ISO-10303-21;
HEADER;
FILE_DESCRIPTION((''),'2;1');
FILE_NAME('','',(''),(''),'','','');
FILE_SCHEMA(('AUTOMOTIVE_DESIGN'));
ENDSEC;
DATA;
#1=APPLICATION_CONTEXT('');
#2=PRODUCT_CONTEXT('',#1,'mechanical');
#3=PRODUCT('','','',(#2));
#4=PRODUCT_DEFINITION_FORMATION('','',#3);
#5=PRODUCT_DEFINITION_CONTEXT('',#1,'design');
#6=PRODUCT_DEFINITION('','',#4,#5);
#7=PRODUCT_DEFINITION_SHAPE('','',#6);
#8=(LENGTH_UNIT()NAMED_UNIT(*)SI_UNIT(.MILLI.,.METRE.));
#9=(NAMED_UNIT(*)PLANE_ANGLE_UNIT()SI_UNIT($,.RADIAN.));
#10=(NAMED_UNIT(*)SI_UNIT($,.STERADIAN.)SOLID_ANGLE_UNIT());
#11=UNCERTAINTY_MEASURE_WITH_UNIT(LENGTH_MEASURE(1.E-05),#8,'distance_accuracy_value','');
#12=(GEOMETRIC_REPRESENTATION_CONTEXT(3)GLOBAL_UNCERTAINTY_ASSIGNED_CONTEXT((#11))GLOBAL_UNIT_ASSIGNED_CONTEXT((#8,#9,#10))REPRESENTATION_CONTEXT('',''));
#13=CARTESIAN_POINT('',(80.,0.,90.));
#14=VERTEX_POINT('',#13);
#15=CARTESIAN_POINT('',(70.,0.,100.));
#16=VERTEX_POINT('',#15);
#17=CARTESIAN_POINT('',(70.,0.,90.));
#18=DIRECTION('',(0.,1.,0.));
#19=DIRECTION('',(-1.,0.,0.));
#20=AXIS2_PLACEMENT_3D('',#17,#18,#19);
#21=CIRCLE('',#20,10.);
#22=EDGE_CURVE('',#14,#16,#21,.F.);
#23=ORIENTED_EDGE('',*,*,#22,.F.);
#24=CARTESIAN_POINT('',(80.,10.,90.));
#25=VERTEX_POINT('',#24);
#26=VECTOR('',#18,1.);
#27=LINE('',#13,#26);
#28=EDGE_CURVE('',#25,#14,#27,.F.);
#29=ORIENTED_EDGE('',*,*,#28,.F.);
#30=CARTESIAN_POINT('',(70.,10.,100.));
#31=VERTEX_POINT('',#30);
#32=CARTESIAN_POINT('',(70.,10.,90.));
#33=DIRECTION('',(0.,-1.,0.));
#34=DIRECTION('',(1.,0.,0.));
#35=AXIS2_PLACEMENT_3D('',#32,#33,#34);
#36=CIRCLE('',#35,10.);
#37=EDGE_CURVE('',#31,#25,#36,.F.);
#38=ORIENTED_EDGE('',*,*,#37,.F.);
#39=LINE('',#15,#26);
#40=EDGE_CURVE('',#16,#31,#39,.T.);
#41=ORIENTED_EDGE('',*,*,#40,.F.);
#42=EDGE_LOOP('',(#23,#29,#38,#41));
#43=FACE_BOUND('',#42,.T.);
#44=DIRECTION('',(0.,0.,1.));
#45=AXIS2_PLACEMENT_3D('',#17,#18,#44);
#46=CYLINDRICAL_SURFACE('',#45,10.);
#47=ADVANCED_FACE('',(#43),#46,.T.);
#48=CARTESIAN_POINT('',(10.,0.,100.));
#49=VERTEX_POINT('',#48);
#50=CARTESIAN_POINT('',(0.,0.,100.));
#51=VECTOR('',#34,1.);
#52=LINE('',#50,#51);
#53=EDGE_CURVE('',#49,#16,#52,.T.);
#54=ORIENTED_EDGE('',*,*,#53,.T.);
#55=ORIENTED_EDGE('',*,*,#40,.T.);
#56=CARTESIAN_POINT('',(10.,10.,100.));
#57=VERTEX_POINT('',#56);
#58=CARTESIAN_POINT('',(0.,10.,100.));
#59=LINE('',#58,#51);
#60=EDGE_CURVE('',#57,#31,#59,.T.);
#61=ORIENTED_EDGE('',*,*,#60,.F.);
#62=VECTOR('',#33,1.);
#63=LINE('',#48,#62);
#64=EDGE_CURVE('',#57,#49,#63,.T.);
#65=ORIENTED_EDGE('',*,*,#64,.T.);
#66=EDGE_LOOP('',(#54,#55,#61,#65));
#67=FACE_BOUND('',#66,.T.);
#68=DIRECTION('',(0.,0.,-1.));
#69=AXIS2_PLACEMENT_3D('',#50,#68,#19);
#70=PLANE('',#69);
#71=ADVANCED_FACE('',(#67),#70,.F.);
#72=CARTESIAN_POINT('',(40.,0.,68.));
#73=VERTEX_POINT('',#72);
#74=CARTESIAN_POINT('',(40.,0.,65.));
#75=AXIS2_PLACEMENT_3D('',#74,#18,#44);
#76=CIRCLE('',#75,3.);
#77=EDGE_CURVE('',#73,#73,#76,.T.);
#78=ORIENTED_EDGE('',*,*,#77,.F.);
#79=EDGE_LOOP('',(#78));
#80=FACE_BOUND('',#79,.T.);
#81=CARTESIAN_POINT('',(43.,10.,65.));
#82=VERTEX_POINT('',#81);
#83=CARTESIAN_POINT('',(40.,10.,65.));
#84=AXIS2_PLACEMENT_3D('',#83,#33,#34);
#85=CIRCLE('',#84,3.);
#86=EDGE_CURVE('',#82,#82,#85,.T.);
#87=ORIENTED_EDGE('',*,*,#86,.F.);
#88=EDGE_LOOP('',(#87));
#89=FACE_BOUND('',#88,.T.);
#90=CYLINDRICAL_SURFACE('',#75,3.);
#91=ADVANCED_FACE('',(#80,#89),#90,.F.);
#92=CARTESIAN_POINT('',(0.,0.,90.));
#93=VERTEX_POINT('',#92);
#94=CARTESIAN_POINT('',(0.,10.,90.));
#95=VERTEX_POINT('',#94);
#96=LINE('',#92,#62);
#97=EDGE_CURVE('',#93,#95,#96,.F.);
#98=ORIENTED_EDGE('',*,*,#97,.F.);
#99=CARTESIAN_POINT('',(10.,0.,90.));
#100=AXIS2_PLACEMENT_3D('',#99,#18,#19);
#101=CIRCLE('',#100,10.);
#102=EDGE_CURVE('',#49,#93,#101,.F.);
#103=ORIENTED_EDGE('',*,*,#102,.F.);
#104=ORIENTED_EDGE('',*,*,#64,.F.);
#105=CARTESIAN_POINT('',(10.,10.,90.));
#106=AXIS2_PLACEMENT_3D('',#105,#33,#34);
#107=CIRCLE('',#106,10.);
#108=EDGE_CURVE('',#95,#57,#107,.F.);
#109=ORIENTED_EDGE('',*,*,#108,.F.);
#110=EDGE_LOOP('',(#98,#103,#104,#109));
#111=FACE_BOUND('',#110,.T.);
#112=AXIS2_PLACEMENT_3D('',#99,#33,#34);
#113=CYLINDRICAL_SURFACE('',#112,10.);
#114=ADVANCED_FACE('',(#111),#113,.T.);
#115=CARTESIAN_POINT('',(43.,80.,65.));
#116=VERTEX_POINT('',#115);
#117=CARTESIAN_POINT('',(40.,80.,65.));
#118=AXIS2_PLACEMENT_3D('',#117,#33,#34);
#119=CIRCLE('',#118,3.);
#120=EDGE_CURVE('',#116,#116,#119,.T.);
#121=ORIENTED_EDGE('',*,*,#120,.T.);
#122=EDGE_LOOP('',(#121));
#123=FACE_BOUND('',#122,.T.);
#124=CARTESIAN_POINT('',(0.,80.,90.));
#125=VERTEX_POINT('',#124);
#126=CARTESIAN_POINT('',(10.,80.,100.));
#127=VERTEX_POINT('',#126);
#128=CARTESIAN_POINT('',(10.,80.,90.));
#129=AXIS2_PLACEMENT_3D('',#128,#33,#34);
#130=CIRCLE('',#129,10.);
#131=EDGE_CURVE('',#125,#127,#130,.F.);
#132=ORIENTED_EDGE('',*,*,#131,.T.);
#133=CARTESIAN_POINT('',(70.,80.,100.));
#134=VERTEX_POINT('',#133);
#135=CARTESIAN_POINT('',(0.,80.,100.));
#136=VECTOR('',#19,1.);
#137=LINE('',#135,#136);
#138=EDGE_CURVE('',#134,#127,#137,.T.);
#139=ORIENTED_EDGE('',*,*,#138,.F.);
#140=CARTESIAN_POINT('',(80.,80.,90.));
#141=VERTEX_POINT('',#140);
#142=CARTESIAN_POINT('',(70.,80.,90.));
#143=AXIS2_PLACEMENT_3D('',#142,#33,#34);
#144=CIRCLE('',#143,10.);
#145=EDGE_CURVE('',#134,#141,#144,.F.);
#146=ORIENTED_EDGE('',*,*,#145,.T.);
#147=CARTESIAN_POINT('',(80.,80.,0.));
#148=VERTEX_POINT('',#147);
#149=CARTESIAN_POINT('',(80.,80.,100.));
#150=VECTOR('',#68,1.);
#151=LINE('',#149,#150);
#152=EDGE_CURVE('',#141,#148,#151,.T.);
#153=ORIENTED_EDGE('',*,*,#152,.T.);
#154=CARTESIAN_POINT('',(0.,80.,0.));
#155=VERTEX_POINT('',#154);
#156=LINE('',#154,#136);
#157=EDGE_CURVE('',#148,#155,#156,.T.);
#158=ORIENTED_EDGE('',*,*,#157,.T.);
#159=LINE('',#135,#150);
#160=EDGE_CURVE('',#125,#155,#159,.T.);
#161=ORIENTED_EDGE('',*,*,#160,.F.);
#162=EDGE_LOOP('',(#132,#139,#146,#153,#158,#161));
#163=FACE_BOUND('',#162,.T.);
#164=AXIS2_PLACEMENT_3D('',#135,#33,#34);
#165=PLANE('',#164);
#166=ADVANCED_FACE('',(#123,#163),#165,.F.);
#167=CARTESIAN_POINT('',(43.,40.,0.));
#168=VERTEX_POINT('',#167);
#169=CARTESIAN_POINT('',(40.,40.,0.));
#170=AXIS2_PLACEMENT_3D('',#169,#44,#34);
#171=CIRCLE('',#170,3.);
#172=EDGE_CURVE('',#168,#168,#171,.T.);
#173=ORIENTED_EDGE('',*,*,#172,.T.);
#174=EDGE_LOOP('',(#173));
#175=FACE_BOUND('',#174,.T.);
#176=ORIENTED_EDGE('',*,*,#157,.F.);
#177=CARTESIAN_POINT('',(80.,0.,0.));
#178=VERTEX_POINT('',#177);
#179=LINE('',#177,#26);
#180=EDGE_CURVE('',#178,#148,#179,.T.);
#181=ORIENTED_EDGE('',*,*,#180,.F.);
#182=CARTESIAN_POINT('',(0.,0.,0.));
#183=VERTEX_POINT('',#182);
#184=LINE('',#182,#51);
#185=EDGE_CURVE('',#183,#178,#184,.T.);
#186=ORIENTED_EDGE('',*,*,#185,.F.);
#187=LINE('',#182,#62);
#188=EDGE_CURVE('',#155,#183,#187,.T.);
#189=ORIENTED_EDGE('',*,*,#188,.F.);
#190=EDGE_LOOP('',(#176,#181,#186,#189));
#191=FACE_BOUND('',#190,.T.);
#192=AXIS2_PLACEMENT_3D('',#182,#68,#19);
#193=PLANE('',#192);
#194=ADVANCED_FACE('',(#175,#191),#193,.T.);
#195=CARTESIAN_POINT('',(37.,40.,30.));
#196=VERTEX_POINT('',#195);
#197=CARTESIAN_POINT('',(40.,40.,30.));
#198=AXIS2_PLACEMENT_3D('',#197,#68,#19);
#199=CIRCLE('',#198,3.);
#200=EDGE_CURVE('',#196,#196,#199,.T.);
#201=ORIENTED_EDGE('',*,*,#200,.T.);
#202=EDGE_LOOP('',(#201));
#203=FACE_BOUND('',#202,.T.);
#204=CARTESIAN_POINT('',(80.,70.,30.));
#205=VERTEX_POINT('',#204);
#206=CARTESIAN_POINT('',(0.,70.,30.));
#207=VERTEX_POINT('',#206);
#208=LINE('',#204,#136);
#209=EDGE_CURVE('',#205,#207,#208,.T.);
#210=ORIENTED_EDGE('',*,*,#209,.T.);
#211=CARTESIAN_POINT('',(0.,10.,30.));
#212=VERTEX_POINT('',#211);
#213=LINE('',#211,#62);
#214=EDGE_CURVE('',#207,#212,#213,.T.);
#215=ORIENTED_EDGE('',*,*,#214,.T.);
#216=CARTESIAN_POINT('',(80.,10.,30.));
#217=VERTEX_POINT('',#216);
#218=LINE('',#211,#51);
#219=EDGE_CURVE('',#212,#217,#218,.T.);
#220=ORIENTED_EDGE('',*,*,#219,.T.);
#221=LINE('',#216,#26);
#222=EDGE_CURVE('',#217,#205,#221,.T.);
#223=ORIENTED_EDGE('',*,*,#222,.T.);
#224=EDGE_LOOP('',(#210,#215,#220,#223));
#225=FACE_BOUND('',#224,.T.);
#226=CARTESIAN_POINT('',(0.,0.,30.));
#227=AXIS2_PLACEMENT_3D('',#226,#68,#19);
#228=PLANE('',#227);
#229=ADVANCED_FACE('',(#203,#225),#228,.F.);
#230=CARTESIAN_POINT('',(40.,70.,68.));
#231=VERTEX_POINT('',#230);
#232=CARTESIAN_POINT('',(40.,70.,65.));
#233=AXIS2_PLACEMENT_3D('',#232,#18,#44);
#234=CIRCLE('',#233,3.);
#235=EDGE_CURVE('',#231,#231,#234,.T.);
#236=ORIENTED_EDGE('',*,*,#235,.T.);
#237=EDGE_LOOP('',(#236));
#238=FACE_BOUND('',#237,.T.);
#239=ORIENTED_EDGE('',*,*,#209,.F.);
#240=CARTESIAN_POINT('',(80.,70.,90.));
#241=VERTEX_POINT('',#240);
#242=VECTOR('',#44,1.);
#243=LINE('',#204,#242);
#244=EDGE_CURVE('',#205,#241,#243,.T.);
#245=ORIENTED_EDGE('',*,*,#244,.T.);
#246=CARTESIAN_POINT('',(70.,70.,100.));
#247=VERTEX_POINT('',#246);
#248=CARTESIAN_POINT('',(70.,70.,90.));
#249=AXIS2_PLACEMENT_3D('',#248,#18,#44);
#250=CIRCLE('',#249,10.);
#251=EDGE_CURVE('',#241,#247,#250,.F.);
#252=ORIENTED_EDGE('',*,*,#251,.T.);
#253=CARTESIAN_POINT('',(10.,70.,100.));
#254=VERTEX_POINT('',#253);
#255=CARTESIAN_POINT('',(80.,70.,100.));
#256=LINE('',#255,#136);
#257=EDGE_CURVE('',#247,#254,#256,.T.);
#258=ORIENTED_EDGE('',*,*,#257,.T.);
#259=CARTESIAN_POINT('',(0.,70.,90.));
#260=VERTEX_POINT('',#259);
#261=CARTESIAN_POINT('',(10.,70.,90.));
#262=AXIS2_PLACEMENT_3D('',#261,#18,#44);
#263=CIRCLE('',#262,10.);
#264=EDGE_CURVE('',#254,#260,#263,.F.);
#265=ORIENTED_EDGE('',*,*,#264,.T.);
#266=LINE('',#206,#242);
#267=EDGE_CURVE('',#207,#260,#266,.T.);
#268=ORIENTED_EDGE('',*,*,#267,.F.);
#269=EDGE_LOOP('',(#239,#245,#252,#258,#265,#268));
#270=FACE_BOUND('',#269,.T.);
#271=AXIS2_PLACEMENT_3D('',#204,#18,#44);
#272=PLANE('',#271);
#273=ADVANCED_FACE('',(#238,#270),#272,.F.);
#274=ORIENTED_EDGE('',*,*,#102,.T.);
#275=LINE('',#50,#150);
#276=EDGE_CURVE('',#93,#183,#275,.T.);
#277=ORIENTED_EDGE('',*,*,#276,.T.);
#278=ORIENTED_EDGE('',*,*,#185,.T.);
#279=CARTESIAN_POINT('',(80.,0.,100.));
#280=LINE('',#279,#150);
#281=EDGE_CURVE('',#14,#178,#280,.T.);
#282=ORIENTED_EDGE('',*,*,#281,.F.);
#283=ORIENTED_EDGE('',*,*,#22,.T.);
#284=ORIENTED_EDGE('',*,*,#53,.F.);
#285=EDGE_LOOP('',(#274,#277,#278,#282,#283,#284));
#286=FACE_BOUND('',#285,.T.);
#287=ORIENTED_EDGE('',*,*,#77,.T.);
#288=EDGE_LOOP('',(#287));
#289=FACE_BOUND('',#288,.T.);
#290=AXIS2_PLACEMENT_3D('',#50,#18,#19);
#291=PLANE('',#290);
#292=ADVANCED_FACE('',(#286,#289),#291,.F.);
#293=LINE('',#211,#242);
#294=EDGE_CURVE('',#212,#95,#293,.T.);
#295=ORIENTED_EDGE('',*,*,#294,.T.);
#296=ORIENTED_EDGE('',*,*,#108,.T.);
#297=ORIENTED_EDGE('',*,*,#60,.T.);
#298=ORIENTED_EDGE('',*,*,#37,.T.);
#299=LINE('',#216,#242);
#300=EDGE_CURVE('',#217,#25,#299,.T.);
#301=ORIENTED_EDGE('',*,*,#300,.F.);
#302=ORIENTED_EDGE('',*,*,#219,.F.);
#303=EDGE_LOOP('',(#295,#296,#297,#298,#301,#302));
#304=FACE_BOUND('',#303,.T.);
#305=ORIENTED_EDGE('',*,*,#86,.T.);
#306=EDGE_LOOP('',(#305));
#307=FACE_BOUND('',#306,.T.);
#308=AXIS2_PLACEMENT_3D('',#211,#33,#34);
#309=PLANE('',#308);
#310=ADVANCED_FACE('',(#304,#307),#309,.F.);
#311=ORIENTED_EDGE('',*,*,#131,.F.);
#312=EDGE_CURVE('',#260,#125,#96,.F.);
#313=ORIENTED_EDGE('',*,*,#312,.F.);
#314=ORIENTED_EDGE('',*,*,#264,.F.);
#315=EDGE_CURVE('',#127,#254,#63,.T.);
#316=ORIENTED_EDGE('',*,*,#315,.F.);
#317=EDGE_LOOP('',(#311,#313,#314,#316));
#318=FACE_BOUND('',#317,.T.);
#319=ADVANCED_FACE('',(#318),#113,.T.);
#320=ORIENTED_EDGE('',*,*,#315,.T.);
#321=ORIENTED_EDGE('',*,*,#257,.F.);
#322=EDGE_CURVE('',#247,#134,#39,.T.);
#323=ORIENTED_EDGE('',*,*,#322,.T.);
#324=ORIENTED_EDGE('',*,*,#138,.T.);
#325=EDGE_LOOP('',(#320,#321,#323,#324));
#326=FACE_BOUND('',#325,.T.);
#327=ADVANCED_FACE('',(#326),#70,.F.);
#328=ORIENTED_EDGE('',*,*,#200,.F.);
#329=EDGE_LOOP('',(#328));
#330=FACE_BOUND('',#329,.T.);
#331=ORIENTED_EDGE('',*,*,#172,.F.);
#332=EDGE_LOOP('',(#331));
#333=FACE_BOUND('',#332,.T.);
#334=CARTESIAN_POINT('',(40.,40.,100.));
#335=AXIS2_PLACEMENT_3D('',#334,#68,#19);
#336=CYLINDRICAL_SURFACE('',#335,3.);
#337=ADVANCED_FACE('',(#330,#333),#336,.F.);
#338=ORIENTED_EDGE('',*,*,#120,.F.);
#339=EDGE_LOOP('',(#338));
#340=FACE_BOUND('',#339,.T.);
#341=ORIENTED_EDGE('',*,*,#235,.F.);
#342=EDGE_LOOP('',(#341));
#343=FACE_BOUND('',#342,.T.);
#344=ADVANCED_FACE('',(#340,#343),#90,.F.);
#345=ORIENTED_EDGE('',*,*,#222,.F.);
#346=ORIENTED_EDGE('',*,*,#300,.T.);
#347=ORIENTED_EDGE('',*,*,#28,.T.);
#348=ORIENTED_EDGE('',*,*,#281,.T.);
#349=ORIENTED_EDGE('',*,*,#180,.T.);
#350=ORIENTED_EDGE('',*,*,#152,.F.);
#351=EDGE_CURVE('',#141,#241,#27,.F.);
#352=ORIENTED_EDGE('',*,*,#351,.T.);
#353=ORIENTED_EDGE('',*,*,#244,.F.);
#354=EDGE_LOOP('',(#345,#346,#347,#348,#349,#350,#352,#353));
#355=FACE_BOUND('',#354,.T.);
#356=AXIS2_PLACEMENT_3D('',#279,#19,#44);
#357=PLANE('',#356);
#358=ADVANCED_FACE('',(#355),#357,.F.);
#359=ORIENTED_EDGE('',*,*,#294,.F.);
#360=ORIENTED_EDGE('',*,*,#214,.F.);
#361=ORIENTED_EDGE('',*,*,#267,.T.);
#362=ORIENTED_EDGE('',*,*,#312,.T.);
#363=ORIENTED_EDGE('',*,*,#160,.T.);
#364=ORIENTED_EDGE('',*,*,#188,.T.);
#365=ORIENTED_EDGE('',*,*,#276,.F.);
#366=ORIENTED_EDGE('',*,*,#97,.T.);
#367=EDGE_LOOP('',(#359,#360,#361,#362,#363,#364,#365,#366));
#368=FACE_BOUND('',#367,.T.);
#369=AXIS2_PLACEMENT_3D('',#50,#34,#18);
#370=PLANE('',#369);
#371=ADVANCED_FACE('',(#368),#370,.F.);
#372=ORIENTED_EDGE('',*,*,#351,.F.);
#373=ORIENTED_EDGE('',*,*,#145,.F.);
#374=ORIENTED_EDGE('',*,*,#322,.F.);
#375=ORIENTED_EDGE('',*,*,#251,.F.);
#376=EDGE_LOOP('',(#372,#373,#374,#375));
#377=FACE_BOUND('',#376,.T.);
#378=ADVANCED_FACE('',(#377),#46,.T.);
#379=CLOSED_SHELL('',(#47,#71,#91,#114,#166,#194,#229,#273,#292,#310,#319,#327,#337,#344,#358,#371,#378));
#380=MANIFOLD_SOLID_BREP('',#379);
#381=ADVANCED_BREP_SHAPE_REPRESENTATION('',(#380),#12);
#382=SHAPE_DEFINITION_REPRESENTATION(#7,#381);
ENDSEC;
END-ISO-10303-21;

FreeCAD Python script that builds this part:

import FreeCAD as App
import Part
import Sketcher

V = App.Vector


def edges_at(feature, points):
    """Names of the edges that pass closest to the given points."""
    edges = feature.Shape.Edges
    near = lambda p: min(range(len(edges)), key=lambda i: edges[i].distToShape(Part.Vertex(*p))[0])
    return sorted({f"Edge{near(p) + 1}" for p in points})


def add_polygon(sketch, points):
    """Adds a closed chain of lines whose ends are joined by coincident constraints."""
    first, n = sketch.GeometryCount, len(points)
    for a, b in zip(points, points[1:] + points[:1]):
        sketch.addGeometry(Part.LineSegment(App.Vector(*a, 0), App.Vector(*b, 0)), False)
    for i in range(n):
        sketch.addConstraint(Sketcher.Constraint("Coincident", first + i, 2, first + (i + 1) % n, 1))

doc = App.newDocument("Part")
body = doc.addObject("PartDesign::Body", "Body")

# Sketch on XY plane
sketch1 = body.newObject("Sketcher::SketchObject", "Sketch")
sketch1.AttachmentSupport = (doc.getObject("XY_Plane"), [""])
sketch1.MapMode = "FlatFace"
add_polygon(sketch1, [(0, 80), (0, 0), (80, 0), (80, 80)])  # lines 0-3
sketch1.addGeometry(Part.Circle(V(40, 40, 0), V(0, 0, 1), 3), False)  # 4
sketch1.addConstraint([
    Sketcher.Constraint("Vertical", 0),
    Sketcher.Constraint("Horizontal", 1),
    Sketcher.Constraint("Vertical", 2),
    Sketcher.Constraint("Horizontal", 3),
    Sketcher.Constraint("Coincident", 0, 2, -1, 1),
    Sketcher.Constraint("Equal", 3, 0),
    Sketcher.Constraint("Diameter", 4, 6.0),
    Sketcher.Constraint("DistanceX", 1, 1, 1, 2, 80.0),
    Sketcher.Constraint("DistanceX", -1, 1, 4, 3, 40.0),
    Sketcher.Constraint("DistanceY", -1, 1, 4, 3, 40.0),
])
pad1 = body.newObject("PartDesign::Pad", "Pad")
pad1.Profile = sketch1
pad1.Length = 100

# Sketch on XY plane
sketch2 = body.newObject("Sketcher::SketchObject", "Sketch001")
sketch2.AttachmentSupport = (doc.getObject("XY_Plane"), [""])
sketch2.MapMode = "FlatFace"
sketch2.AttachmentOffset = App.Placement(V(0, 0, 100), App.Rotation())
add_polygon(sketch2, [(0, 70), (0, 10), (80, 10), (80, 70)])  # lines 0-3
sketch2.addConstraint([
    Sketcher.Constraint("Vertical", 0),
    Sketcher.Constraint("Horizontal", 1),
    Sketcher.Constraint("Vertical", 2),
    Sketcher.Constraint("Horizontal", 3),
    Sketcher.Constraint("PointOnObject", 0, 2, -2),
    Sketcher.Constraint("DistanceX", 1, 1, 1, 2, 80.0),
    Sketcher.Constraint("DistanceY", 0, 2, 0, 1, 60.0),
    Sketcher.Constraint("DistanceY", -1, 1, 0, 2, 10.0),
])
pocket1 = body.newObject("PartDesign::Pocket", "Pocket")
pocket1.Profile = sketch2
pocket1.Length = 70

# Sketch on XZ plane
sketch3 = body.newObject("Sketcher::SketchObject", "Sketch002")
sketch3.AttachmentSupport = (doc.getObject("XZ_Plane"), [""])
sketch3.MapMode = "FlatFace"
sketch3.AttachmentOffset = App.Placement(V(0, 0, -80), App.Rotation())
sketch3.addGeometry(Part.Circle(V(40, 65, 0), V(0, 0, 1), 3), False)
sketch3.addConstraint([
    Sketcher.Constraint("Diameter", 0, 6.0),
    Sketcher.Constraint("DistanceX", -1, 1, 0, 3, 40.0),
    Sketcher.Constraint("DistanceY", -1, 1, 0, 3, 65.0),
])
pocket2 = body.newObject("PartDesign::Pocket", "Pocket001")
pocket2.Profile = sketch3
pocket2.Type = "ThroughAll"
pocket2.Midplane = True
doc.recompute()

fillet = body.newObject("PartDesign::Fillet", "Fillet")
fillet.Base = (pocket2, edges_at(pocket2, [
    (80, 5, 100),
    (80, 75, 100),
    (0, 5, 100),
    (0, 75, 100),
]))
fillet.Radius = 10

doc.recompute()
